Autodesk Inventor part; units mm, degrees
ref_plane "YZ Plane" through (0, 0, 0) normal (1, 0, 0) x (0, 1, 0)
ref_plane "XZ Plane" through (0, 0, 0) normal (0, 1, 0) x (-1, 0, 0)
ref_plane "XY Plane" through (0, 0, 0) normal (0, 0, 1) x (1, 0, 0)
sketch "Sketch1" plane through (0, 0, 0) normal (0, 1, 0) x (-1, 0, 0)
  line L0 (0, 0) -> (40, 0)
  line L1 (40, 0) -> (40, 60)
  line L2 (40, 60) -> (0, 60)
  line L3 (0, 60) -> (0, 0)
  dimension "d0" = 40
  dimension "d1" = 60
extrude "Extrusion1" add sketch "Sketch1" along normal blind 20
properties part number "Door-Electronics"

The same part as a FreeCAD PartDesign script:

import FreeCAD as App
import Part
import Sketcher

V = App.Vector
Q = App.Units.Quantity

doc = App.newDocument("Part")
body = doc.addObject("PartDesign::Body", "Body")

# Sketch on XZ plane
sketch1 = body.newObject("Sketcher::SketchObject", "Sketch")
sketch1.AttachmentSupport = (doc.getObject("XZ_Plane"), [""])
sketch1.MapMode = "FlatFace"
sketch1.addGeometry(Part.LineSegment(V(0, 60, 0), V(0, 0, 0)), False)
sketch1.addGeometry(Part.LineSegment(V(0, 0, 0), V(-40, 0, 0)), False)
sketch1.addGeometry(Part.LineSegment(V(-40, 0, 0), V(-40, 60, 0)), False)
sketch1.addGeometry(Part.LineSegment(V(-40, 60, 0), V(0, 60, 0)), False)
sketch1.addConstraint(Sketcher.Constraint("Coincident", 0, 2, 1, 1))
sketch1.addConstraint(Sketcher.Constraint("Coincident", 1, 2, 2, 1))
sketch1.addConstraint(Sketcher.Constraint("Coincident", 2, 2, 3, 1))
sketch1.addConstraint(Sketcher.Constraint("Coincident", 3, 2, 0, 1))
sketch1.addConstraint(Sketcher.Constraint("Vertical", 0))
sketch1.addConstraint(Sketcher.Constraint("Horizontal", 1))
sketch1.addConstraint(Sketcher.Constraint("Vertical", 2))
sketch1.addConstraint(Sketcher.Constraint("Horizontal", 3))
sketch1.addConstraint(Sketcher.Constraint("Coincident", 0, 2, -1, 1))
sketch1.addConstraint(Sketcher.Constraint("DistanceX", 1, 2, 1, 1, Q("40 mm")))
sketch1.addConstraint(Sketcher.Constraint("DistanceY", 0, 2, 0, 1, Q("60 mm")))
pad1 = body.newObject("PartDesign::Pad", "Pad")
pad1.Profile = sketch1
pad1.Length = 20
pad1.Reversed = True

doc.recompute()
